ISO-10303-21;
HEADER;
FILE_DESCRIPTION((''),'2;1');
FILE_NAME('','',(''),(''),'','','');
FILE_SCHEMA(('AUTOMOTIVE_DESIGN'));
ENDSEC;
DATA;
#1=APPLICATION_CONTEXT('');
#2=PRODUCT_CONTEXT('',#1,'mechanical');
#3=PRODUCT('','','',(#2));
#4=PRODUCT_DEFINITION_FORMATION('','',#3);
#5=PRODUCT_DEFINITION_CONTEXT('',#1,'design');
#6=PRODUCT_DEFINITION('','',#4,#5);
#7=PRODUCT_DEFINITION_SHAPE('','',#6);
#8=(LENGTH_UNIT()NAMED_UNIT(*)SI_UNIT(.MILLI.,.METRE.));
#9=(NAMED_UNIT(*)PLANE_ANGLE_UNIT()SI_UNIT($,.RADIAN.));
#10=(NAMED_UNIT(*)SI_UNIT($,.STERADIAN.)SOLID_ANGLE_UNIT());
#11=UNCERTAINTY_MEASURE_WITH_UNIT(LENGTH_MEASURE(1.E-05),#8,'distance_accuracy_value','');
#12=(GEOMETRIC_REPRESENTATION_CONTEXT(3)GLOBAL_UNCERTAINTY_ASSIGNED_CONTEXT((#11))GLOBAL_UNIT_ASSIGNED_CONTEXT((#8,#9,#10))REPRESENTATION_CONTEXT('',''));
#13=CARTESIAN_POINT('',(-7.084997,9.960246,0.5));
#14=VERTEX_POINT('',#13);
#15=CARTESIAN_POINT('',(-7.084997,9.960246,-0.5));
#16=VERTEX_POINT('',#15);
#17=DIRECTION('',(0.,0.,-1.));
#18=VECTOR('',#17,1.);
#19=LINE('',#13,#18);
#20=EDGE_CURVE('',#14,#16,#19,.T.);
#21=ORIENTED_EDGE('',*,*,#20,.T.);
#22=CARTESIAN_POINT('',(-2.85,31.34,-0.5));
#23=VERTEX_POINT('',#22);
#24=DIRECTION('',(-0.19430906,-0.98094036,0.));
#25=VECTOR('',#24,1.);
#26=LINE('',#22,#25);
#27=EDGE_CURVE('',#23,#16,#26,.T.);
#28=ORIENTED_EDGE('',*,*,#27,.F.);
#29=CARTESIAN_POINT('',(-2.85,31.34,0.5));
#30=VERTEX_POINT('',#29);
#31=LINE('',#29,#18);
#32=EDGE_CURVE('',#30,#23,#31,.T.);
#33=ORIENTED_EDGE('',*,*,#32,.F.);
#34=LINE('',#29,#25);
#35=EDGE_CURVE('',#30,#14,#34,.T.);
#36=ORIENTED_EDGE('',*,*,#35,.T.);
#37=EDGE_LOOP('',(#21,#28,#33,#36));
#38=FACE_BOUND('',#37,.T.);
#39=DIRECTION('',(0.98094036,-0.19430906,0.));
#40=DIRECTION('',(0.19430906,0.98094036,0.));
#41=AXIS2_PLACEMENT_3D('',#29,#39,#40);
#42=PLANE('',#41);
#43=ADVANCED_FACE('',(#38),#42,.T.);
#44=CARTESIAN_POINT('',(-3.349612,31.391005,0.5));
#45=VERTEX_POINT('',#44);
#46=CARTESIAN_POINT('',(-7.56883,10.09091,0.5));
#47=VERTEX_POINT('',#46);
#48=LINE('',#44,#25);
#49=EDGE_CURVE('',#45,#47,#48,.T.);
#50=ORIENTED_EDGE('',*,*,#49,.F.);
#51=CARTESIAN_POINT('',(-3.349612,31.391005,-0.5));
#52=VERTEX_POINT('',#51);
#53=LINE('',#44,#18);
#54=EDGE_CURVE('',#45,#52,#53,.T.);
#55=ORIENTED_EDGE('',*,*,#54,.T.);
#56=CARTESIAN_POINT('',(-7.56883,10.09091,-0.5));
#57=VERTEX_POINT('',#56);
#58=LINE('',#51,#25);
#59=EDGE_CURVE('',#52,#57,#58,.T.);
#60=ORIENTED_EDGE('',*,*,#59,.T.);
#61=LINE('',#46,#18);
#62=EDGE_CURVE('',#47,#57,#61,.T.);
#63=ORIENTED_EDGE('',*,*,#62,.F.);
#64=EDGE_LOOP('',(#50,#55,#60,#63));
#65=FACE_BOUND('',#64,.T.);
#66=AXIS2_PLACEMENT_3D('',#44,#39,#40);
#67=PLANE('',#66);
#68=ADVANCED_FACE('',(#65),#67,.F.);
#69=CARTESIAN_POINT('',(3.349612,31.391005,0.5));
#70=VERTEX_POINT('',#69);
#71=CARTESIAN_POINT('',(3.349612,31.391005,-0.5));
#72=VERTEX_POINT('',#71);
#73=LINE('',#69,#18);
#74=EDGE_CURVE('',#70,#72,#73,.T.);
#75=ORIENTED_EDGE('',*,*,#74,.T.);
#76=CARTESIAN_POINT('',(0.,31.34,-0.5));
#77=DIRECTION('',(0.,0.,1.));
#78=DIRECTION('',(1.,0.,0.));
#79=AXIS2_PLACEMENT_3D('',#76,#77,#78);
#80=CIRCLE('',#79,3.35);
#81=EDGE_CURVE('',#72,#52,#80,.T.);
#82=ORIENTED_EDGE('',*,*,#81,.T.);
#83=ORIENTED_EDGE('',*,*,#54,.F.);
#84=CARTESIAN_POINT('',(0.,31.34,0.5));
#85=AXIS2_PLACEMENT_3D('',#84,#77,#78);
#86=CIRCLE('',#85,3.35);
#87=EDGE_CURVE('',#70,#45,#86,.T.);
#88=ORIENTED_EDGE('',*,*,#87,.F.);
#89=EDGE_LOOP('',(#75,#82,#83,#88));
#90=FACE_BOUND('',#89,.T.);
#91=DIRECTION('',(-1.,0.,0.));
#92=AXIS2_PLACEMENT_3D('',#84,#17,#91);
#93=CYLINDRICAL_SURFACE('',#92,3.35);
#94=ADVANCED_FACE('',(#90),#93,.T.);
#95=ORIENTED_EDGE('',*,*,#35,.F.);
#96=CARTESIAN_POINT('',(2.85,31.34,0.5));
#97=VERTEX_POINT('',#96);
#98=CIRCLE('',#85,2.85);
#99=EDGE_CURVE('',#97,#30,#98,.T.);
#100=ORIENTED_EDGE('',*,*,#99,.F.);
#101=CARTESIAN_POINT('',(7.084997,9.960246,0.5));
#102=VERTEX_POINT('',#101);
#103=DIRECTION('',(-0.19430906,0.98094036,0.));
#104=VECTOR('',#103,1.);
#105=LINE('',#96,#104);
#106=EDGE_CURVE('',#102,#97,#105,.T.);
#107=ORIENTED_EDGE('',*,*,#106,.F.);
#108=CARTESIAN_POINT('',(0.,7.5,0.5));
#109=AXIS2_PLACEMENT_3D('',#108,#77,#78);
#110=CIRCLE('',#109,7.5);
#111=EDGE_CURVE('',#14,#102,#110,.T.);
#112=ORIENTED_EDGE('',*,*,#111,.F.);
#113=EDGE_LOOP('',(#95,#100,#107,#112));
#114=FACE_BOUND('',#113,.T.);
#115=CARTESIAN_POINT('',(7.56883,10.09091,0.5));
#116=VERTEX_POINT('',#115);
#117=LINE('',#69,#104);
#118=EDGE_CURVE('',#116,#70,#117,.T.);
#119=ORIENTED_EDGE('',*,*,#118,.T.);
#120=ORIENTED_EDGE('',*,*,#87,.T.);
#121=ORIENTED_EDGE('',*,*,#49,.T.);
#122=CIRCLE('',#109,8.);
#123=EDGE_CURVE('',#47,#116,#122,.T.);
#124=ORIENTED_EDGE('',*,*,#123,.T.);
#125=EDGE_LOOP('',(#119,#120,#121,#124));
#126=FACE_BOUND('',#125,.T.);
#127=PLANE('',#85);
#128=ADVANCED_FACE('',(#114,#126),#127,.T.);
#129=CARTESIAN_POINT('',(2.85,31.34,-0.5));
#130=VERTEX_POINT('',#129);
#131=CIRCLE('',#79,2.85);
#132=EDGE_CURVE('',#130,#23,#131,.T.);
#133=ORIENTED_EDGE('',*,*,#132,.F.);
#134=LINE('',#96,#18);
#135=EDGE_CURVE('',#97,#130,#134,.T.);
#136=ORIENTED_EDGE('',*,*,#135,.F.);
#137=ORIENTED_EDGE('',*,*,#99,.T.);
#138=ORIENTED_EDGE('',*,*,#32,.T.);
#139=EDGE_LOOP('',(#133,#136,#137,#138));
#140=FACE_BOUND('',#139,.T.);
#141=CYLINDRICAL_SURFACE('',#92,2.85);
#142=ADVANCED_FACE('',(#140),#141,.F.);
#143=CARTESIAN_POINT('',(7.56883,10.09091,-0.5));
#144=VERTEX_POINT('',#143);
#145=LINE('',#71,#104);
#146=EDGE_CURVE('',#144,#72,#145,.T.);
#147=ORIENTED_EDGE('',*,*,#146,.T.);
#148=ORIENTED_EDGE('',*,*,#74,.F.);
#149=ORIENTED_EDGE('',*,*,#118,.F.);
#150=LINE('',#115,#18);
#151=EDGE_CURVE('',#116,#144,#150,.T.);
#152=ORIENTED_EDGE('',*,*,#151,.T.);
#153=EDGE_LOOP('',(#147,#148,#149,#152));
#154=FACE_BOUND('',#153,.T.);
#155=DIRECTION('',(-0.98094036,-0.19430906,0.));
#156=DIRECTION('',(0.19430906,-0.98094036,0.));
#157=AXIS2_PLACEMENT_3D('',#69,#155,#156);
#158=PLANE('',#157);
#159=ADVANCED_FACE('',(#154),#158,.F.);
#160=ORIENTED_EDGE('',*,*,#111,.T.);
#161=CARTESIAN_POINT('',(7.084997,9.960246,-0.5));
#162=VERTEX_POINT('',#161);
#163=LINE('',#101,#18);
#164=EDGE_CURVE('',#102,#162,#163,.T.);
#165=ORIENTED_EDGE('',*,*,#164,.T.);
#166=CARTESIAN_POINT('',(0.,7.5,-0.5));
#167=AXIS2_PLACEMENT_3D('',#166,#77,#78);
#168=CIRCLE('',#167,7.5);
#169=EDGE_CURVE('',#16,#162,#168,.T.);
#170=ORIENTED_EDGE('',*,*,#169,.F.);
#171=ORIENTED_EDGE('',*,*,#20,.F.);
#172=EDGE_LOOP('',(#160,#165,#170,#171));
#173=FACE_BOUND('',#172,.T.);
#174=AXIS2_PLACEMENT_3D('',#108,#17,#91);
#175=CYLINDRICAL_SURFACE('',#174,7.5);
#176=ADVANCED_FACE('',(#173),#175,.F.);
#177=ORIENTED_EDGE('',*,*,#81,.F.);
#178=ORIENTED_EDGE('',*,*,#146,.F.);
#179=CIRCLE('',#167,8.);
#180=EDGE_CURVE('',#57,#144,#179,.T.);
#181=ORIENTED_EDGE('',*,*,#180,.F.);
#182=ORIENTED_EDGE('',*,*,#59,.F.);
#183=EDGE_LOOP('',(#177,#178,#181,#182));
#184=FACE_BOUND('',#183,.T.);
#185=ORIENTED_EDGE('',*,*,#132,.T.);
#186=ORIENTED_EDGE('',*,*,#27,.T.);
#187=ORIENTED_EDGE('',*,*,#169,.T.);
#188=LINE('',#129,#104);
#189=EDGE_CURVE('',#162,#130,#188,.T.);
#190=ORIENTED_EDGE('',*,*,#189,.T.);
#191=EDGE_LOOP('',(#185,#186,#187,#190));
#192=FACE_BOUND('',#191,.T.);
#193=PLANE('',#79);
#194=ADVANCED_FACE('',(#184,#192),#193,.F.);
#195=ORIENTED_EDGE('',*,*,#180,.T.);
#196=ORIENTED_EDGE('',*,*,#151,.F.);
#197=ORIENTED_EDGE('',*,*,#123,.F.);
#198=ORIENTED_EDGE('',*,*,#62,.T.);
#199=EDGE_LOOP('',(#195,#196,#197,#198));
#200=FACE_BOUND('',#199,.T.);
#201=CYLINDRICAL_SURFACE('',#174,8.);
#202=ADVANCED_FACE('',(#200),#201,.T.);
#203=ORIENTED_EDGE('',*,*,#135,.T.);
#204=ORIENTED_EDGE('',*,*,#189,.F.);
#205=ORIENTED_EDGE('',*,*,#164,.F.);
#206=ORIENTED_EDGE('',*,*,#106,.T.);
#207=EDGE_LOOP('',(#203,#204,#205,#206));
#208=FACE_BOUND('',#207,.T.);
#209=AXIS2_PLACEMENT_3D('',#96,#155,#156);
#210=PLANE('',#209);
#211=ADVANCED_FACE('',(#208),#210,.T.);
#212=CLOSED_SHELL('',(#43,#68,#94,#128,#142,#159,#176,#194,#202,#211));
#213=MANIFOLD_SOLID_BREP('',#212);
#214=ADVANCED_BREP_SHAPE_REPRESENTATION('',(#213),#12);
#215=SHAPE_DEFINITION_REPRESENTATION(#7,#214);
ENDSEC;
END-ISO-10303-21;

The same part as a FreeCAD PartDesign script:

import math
import FreeCAD as App
import Part
import Sketcher

V = App.Vector

doc = App.newDocument("Part")
body = doc.addObject("PartDesign::Body", "Body")

# Sketch on XY plane
sketch1 = body.newObject("Sketcher::SketchObject", "Sketch")
sketch1.AttachmentSupport = (doc.getObject("XY_Plane"), [""])
sketch1.MapMode = "FlatFace"
sketch1.addGeometry([
    Part.LineSegment(V(-3.3, 31.4, 0), V(-7.6, 10.1, 0)),  # 0
    Part.ArcOfCircle(Part.Circle(V(0, 7.5, 0), V(0, 0, 1), 8), math.radians(161), math.radians(379)),  # 1
    Part.LineSegment(V(7.6, 10.1, 0), V(3.3, 31.4, 0)),  # 2
    Part.ArcOfCircle(Part.Circle(V(0, 31.3, 0), V(0, 0, 1), 3.4), math.radians(1), math.radians(179)),  # 3
    Part.LineSegment(V(-7.1, 10, 0), V(-2.9, 31.3, 0)),  # 4
    Part.ArcOfCircle(Part.Circle(V(0, 31.3, 0), V(0, 0, 1), 2.9), math.radians(0), math.radians(180)),  # 5
    Part.LineSegment(V(2.9, 31.3, 0), V(7.1, 10, 0)),  # 6
    Part.ArcOfCircle(Part.Circle(V(0, 7.5, 0), V(0, 0, 1), 7.5), math.radians(161), math.radians(379)),  # 7
], False)
sketch1.addConstraint([
    Sketcher.Constraint("Coincident", 0, 2, 1, 1),
    Sketcher.Constraint("Coincident", 1, 2, 2, 1),
    Sketcher.Constraint("Coincident", 2, 2, 3, 1),
    Sketcher.Constraint("Coincident", 3, 2, 0, 1),
    Sketcher.Constraint("Coincident", 4, 2, 5, 2),
    Sketcher.Constraint("Coincident", 5, 1, 6, 1),
    Sketcher.Constraint("Coincident", 6, 2, 7, 2),
    Sketcher.Constraint("Coincident", 7, 1, 4, 1),
    Sketcher.Constraint("Coincident", 5, 3, 3, 3),
    Sketcher.Constraint("Coincident", 7, 3, 1, 3),
    Sketcher.Constraint("Symmetric", 0, 2, 1, 2, -2),
    Sketcher.Constraint("Symmetric", 2, 2, 3, 2, -2),
    Sketcher.Constraint("Parallel", 0, 4),
    Sketcher.Constraint("Parallel", 2, 6),
    Sketcher.Constraint("Horizontal", 5, 3, 4, 2),
    Sketcher.Constraint("Horizontal", 4, 2, 5, 1),
    Sketcher.Constraint("Radius", 1, 8.0),
    Sketcher.Constraint("Radius", 7, 7.5),
    Sketcher.Constraint("Radius", 3, 3.35),
    Sketcher.Constraint("Radius", 5, 2.85),
    Sketcher.Constraint("DistanceY", -1, 1, 1, 3, 7.5),
    Sketcher.Constraint("DistanceY", -1, 1, 3, 3, 31.34),
    Sketcher.Constraint("Distance", 4, 21.795161),
    Sketcher.Constraint("DistanceX", 0, 2, -1, 1, 7.56883),
])
pad1 = body.newObject("PartDesign::Pad", "Pad")
pad1.Profile = sketch1
pad1.Length = 1
pad1.Midplane = True

doc.recompute()
